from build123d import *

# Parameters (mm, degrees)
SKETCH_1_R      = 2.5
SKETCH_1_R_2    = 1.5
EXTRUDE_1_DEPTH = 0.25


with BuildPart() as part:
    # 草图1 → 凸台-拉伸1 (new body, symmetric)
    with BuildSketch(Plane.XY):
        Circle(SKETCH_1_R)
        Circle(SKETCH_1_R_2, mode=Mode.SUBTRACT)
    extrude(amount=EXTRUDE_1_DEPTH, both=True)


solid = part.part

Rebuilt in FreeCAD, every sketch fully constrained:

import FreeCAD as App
import Part
import Sketcher
Q = App.Units.Quantity

doc = App.newDocument("Part")
params = doc.addObject("Spreadsheet::Sheet", "Params")
for row, (alias, value) in enumerate([
    ("sketch1_diameter", "5 mm"),
    ("sketch1_diameter2", "3 mm"),
    ("pad1_length", "0.5 mm"),
], start=1):
    params.set(f"A{row}", alias)
    params.set(f"B{row}", "=" + value)
    params.setAlias(f"B{row}", alias)

body = doc.addObject("PartDesign::Body", "Body")

sketch1 = doc.addObject("Sketcher::SketchObject", "Sketch")
body.addObject(sketch1)
sketch1.AttachmentSupport = (doc.XY_Plane, [""])
sketch1.MapMode = "FlatFace"
sketch1.addGeometry(Part.Circle(App.Vector(0, 0, 0), App.Vector(0, 0, 1), 2.5), False)
sketch1.addGeometry(Part.Circle(App.Vector(0, 0, 0), App.Vector(0, 0, 1), 1.5), False)
sketch1.addConstraint(Sketcher.Constraint("Coincident", 0, 3, -1, 1))
sketch1.addConstraint(Sketcher.Constraint("Coincident", 1, 3, -1, 1))
sketch1.addConstraint(Sketcher.Constraint("Diameter", 0, Q("5 mm")))
sketch1.addConstraint(Sketcher.Constraint("Diameter", 1, Q("3 mm")))
sketch1.setExpression("Constraints[2]", "Params.sketch1_diameter")
sketch1.setExpression("Constraints[3]", "Params.sketch1_diameter2")
pad1 = doc.addObject("PartDesign::Pad", "Pad")
body.addObject(pad1)
pad1.Profile = sketch1
pad1.setExpression("Length", "Params.pad1_length")
pad1.Midplane = True

doc.recompute()
